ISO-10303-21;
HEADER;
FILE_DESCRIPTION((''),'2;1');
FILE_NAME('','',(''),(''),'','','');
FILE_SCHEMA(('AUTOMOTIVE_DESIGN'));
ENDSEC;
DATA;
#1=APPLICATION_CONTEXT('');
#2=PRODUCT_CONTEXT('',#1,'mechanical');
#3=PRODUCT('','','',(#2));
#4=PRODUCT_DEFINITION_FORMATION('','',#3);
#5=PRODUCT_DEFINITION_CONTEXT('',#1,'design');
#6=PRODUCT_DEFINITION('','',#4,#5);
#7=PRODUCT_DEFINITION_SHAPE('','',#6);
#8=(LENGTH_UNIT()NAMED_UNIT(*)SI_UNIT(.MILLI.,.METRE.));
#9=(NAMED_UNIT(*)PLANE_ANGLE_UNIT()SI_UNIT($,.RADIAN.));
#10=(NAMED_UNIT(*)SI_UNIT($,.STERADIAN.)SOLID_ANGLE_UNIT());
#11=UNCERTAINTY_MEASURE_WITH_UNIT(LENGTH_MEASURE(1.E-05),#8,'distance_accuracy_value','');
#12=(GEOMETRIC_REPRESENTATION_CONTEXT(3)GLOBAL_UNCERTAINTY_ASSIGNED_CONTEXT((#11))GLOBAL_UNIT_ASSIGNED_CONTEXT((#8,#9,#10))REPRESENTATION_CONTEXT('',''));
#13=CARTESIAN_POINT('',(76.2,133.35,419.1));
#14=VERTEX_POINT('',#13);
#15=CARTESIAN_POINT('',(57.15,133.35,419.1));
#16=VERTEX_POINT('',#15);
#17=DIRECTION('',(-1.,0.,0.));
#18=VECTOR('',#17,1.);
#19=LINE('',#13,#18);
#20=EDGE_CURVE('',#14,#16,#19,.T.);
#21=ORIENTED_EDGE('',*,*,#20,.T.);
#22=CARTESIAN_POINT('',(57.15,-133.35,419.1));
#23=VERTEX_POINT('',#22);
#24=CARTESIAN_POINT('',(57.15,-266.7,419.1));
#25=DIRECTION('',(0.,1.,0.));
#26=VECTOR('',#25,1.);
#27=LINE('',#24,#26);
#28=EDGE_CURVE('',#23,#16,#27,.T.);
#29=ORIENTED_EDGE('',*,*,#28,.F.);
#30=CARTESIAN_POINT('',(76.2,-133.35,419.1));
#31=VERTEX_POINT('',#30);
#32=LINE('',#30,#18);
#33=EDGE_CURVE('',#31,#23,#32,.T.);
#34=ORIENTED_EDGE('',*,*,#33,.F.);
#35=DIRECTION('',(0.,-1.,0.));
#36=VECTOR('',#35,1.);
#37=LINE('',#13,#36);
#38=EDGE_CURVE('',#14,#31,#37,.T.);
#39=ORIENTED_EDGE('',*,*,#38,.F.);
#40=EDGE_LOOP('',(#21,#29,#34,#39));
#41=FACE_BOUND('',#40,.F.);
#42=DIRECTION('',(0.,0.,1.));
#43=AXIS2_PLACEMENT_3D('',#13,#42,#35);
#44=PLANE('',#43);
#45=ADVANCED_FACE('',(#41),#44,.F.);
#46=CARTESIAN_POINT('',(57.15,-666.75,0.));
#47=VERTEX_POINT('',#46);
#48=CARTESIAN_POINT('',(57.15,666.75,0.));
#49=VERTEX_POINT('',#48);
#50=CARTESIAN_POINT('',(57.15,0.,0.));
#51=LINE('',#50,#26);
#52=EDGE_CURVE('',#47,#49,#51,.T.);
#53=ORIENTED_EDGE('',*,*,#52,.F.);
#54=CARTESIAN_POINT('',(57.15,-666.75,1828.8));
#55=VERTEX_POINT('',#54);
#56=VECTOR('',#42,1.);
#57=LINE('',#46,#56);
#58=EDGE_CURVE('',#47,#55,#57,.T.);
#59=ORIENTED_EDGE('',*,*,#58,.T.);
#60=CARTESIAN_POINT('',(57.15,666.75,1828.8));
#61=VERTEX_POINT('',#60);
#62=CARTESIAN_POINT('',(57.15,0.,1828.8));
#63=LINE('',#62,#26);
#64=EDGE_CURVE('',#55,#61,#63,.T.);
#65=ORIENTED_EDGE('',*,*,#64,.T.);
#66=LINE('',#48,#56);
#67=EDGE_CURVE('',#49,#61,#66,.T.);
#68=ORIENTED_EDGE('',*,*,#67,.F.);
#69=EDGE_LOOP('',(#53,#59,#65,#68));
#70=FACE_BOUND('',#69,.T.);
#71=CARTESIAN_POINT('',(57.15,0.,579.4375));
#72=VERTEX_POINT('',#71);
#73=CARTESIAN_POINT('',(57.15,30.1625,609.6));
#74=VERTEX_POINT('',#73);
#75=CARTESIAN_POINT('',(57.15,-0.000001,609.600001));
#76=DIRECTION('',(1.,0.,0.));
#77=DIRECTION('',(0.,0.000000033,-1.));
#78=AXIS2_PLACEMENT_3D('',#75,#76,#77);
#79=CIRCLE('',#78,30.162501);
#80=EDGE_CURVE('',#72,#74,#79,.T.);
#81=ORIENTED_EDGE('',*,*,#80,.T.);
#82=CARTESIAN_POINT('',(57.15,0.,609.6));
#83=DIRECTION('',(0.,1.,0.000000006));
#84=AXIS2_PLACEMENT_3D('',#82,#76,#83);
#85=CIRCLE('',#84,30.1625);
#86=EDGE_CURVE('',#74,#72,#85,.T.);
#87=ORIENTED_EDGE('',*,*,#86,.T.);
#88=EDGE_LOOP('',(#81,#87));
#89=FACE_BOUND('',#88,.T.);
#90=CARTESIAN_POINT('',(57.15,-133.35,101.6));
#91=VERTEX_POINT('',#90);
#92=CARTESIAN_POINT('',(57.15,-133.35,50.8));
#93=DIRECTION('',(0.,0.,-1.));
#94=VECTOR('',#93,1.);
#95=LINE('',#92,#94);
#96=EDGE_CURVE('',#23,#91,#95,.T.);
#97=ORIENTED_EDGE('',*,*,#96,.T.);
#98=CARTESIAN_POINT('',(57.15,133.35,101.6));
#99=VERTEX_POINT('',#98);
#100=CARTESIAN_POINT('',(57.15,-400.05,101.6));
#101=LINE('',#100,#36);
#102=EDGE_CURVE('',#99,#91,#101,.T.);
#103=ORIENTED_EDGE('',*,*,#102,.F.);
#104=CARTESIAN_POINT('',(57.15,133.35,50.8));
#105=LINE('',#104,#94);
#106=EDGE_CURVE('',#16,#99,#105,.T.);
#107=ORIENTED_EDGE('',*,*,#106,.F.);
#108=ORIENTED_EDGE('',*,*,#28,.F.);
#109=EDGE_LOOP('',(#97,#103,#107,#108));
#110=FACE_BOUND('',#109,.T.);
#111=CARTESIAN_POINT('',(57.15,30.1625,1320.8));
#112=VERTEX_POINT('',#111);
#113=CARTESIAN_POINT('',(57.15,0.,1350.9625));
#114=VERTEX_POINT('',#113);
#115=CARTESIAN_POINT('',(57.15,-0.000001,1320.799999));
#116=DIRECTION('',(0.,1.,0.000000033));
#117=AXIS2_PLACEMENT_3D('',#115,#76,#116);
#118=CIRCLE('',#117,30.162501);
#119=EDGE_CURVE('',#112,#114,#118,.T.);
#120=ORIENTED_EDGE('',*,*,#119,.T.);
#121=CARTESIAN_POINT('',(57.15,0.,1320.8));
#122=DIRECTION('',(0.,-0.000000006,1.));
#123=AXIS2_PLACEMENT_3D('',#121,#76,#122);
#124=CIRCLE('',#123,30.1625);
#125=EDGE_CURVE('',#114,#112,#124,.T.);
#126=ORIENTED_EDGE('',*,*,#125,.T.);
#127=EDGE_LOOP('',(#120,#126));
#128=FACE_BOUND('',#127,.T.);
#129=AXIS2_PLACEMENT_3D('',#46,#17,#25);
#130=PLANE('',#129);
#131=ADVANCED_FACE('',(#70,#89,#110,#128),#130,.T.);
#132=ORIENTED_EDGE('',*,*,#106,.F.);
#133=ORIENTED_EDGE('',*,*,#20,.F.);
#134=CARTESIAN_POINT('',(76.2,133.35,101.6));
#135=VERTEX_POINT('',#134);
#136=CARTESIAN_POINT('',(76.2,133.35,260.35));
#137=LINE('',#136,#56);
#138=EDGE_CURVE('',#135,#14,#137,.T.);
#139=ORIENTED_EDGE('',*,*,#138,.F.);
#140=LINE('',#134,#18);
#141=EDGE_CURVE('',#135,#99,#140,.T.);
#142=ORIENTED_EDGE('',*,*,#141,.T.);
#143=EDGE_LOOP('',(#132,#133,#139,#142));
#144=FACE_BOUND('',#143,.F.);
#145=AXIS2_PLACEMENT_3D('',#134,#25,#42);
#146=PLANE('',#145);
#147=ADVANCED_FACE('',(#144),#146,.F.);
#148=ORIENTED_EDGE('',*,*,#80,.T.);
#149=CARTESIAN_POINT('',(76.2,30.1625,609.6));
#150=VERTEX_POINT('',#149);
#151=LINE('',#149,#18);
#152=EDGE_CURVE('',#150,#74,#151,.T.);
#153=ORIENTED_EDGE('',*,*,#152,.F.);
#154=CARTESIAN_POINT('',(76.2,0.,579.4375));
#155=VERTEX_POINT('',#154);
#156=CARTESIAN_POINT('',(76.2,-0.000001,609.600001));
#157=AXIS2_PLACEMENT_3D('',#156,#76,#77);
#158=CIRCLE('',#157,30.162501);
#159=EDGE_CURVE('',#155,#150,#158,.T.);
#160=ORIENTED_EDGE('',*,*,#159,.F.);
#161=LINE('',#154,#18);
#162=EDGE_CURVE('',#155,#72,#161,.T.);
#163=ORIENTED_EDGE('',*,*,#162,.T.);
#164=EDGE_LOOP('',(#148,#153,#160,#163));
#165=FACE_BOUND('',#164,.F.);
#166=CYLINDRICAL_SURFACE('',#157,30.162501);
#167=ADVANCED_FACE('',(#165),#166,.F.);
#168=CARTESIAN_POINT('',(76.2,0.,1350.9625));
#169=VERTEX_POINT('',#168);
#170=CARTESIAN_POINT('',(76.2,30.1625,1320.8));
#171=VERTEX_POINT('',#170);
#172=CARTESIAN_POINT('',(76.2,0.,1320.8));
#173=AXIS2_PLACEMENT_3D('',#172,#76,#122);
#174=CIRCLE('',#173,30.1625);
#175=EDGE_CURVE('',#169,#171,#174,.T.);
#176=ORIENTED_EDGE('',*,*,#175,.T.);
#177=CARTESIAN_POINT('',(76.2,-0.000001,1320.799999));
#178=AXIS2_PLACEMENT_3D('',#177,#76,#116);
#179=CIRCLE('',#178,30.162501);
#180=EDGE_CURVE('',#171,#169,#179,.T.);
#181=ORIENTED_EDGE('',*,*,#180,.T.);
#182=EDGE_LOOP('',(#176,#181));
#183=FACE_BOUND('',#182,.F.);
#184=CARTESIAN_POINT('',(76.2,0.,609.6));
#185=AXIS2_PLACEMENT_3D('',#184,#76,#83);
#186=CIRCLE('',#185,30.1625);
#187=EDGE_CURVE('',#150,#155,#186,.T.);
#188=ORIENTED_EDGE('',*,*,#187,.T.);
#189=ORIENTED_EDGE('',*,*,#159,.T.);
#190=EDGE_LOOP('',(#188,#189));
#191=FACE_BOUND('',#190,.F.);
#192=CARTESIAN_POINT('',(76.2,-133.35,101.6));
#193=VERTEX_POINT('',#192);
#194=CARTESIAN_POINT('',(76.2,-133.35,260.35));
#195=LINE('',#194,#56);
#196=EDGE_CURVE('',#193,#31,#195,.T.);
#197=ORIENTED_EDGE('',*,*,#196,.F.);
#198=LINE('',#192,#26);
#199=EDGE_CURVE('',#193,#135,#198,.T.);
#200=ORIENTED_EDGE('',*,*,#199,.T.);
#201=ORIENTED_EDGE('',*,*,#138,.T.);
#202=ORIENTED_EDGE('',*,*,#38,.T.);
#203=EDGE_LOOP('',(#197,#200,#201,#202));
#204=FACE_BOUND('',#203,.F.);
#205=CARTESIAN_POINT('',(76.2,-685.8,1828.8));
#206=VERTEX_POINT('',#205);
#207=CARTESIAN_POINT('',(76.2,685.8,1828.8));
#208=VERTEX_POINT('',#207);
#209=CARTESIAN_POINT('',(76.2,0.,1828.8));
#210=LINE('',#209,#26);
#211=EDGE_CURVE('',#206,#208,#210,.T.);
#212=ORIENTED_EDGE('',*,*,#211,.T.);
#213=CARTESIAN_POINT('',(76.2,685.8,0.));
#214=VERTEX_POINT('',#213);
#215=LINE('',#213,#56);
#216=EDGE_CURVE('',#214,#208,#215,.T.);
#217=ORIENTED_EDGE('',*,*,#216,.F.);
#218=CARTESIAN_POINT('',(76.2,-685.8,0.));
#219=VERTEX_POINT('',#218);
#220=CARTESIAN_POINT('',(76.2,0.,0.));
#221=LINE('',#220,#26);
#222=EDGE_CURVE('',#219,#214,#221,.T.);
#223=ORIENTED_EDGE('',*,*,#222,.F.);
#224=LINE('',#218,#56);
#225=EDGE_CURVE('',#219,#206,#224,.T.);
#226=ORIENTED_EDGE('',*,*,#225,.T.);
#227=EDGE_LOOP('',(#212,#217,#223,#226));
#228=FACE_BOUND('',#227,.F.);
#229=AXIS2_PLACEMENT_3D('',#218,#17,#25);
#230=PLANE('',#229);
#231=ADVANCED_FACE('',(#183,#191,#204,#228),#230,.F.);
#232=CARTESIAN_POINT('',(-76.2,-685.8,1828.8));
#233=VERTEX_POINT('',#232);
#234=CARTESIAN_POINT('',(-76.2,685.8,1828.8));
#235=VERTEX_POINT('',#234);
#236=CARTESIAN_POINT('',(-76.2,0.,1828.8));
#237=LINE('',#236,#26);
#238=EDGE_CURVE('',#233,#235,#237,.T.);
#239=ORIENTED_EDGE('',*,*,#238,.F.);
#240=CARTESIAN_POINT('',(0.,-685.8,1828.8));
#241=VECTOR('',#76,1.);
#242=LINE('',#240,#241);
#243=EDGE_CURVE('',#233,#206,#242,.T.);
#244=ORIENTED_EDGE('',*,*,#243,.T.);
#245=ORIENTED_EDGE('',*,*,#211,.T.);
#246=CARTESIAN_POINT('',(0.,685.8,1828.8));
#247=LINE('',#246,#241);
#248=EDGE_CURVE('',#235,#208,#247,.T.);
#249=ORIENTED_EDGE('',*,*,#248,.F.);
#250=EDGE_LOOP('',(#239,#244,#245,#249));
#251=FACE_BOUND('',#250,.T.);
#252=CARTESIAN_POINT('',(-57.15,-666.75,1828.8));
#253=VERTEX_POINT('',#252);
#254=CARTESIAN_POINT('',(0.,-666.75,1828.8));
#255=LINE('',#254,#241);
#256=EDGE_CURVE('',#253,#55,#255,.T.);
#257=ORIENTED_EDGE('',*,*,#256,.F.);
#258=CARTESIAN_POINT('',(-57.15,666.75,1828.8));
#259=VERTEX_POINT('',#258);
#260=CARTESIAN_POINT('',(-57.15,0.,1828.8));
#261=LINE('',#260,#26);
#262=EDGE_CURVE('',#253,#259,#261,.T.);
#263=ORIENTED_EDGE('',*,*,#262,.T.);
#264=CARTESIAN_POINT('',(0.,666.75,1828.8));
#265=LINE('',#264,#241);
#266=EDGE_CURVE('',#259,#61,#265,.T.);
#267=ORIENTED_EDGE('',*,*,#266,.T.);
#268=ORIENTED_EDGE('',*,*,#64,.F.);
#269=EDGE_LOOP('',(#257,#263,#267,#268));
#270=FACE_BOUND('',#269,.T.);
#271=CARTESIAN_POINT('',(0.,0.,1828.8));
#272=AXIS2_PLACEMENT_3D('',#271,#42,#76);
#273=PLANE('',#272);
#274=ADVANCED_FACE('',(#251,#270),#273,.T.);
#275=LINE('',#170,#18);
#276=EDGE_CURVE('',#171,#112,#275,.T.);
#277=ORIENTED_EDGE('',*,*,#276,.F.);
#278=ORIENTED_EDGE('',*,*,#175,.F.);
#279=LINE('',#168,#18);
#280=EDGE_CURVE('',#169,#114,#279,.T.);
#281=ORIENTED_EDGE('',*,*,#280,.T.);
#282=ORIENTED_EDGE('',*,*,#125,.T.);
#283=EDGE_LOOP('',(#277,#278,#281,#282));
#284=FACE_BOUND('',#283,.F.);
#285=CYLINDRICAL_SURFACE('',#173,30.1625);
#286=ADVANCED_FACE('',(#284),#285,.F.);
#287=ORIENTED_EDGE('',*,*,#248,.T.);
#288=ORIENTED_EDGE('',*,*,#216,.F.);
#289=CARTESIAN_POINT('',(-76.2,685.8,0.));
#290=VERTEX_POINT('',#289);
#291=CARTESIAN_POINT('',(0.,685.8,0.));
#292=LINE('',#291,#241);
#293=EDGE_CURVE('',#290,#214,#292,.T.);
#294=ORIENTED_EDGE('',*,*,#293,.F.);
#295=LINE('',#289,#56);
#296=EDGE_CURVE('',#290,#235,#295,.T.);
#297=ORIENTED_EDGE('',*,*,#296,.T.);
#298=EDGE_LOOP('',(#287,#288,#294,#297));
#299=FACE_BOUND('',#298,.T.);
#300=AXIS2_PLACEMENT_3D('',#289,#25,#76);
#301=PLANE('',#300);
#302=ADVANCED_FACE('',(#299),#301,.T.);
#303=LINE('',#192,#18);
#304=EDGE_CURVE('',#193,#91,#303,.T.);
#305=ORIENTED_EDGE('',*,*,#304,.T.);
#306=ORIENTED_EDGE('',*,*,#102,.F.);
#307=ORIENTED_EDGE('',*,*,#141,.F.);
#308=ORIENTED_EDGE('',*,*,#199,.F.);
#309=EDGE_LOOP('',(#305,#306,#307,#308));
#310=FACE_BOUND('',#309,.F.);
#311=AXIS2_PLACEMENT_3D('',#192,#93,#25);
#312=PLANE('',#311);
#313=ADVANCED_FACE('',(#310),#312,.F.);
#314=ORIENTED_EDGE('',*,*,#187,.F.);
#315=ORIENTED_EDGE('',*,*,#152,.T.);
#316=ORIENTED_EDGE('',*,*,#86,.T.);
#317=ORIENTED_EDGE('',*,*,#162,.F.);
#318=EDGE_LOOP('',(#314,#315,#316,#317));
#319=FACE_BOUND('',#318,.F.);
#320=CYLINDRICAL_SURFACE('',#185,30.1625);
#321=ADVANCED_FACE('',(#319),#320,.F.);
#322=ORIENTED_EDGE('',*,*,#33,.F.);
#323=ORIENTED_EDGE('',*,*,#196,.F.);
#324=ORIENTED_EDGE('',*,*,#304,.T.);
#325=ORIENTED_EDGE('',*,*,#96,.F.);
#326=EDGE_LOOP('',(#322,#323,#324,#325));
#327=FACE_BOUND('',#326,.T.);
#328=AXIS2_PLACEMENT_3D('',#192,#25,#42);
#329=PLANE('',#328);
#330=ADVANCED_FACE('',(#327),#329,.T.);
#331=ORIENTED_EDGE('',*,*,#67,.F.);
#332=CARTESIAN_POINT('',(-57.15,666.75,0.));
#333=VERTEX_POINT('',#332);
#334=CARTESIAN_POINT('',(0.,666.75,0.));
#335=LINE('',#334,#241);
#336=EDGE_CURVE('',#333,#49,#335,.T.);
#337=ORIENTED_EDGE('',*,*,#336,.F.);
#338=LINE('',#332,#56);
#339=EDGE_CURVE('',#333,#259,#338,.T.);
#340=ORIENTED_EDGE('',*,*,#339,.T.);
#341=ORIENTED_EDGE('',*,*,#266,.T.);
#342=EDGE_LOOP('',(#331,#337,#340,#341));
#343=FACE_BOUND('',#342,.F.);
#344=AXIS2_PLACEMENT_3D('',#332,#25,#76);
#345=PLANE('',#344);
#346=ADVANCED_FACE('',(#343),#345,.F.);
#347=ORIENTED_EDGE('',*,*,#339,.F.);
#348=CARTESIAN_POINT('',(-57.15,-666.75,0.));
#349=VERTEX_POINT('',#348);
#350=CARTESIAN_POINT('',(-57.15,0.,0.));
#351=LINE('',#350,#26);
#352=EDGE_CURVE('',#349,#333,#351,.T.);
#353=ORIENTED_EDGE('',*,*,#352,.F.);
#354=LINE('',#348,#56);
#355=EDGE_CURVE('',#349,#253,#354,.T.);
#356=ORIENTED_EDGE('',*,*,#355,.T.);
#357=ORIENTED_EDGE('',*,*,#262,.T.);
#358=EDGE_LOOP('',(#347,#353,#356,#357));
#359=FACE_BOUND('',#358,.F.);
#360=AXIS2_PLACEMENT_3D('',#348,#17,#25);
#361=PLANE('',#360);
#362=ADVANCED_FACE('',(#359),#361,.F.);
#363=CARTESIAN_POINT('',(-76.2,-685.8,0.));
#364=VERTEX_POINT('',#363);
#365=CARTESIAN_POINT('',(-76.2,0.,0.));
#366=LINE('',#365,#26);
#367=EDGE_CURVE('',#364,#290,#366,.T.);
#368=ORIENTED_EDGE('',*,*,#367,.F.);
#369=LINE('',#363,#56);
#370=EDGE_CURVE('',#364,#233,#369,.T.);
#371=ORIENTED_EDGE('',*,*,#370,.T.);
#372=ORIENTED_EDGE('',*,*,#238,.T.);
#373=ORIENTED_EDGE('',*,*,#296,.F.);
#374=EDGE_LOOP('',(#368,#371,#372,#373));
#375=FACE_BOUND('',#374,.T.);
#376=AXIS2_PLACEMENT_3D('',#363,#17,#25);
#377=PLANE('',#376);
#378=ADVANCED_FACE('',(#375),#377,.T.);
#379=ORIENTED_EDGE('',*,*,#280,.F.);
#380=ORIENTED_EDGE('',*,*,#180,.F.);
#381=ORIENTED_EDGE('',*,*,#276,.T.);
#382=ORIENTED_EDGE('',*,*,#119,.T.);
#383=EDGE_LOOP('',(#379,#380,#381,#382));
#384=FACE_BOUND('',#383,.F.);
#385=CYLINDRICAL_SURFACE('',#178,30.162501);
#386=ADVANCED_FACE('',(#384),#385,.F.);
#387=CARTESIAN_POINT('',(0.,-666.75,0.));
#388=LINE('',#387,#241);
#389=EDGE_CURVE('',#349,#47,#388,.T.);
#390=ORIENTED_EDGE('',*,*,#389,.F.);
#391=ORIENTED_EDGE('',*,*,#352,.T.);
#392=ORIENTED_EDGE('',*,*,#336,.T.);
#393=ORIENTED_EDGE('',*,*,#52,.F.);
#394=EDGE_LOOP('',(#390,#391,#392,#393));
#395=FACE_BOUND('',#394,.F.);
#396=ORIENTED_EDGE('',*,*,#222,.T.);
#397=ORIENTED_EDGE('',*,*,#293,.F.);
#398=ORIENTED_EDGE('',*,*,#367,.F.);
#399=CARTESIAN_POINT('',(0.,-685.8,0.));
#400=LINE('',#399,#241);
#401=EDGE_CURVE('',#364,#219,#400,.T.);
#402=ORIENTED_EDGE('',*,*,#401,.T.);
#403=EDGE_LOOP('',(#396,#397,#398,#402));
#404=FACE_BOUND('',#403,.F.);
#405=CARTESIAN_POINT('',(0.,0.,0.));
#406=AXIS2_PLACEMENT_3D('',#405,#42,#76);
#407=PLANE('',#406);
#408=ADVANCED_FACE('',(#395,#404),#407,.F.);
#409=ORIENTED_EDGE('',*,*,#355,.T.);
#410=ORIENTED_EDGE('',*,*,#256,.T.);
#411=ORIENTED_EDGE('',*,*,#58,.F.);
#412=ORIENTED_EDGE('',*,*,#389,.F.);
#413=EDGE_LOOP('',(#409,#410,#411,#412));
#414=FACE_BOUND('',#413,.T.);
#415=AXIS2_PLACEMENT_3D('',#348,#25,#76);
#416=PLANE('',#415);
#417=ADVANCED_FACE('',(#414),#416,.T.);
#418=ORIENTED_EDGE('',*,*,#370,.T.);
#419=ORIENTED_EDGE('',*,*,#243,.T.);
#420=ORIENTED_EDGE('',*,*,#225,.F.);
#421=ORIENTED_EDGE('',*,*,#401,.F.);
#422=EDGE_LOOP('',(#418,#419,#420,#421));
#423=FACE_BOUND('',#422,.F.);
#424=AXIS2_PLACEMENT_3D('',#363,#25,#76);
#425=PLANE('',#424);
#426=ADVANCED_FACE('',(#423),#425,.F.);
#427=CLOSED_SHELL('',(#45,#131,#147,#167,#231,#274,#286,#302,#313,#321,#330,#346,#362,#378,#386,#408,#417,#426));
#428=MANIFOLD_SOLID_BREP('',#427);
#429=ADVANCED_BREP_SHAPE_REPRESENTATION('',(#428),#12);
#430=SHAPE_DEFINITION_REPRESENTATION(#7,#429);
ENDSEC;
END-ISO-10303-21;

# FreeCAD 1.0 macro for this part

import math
import FreeCAD as App
import Part
import Sketcher
Q = App.Units.Quantity

doc = App.newDocument("Part")
body = doc.addObject("PartDesign::Body", "Body")

sketch1 = body.newObject("Sketcher::SketchObject", "Sketch")
sketch1.AttachmentSupport = (doc.getObject("XY_Plane"), [""])
sketch1.MapMode = "FlatFace"
sketch1.addGeometry([
    Part.LineSegment(App.Vector(-76, 686, 0), App.Vector(-76, -686, 0)),
    Part.LineSegment(App.Vector(-76, -686, 0), App.Vector(76, -686, 0)),
    Part.LineSegment(App.Vector(76, -686, 0), App.Vector(76, 686, 0)),
    Part.LineSegment(App.Vector(76, 686, 0), App.Vector(-76, 686, 0)),
    Part.LineSegment(App.Vector(57, -667, 0), App.Vector(-57, -667, 0)),
    Part.LineSegment(App.Vector(-57, -667, 0), App.Vector(-57, 667, 0)),
    Part.LineSegment(App.Vector(-57, 667, 0), App.Vector(57, 667, 0)),
    Part.LineSegment(App.Vector(57, 667, 0), App.Vector(57, -667, 0)),
], False)
sketch1.addConstraint([
    Sketcher.Constraint("Coincident", 0, 2, 1, 1),
    Sketcher.Constraint("Coincident", 1, 2, 2, 1),
    Sketcher.Constraint("Coincident", 2, 2, 3, 1),
    Sketcher.Constraint("Coincident", 3, 2, 0, 1),
    Sketcher.Constraint("Coincident", 4, 2, 5, 1),
    Sketcher.Constraint("Coincident", 5, 2, 6, 1),
    Sketcher.Constraint("Coincident", 6, 2, 7, 1),
    Sketcher.Constraint("Coincident", 7, 2, 4, 1),
    Sketcher.Constraint("Vertical", 0),
    Sketcher.Constraint("Horizontal", 1),
    Sketcher.Constraint("Vertical", 2),
    Sketcher.Constraint("Horizontal", 3),
    Sketcher.Constraint("Horizontal", 4),
    Sketcher.Constraint("Vertical", 5),
    Sketcher.Constraint("Horizontal", 6),
    Sketcher.Constraint("Vertical", 7),
    Sketcher.Constraint("Symmetric", 0, 2, 2, 2, -1, 1),
    Sketcher.Constraint("Symmetric", 4, 2, 6, 2, -1, 1),
    Sketcher.Constraint("DistanceX", 1, 1, 1, 2, Q("6 in")),
    Sketcher.Constraint("DistanceY", 0, 2, 0, 1, Q("54 in")),
    Sketcher.Constraint("DistanceX", 4, 2, 4, 1, Q("4.5 in")),
    Sketcher.Constraint("DistanceY", 5, 1, 5, 2, Q("52.5 in")),
])
pad1 = body.newObject("PartDesign::Pad", "Pad")
pad1.Profile = sketch1
pad1.Length = Q("72 in")

sketch2 = body.newObject("Sketcher::SketchObject", "Sketch001")
sketch2.AttachmentSupport = (doc.getObject("YZ_Plane"), [""])
sketch2.MapMode = "FlatFace"
sketch2.AttachmentOffset = App.Placement(App.Vector(0, 0, 3 * 25.4), App.Rotation())
sketch2.addGeometry([
    Part.ArcOfCircle(Part.Circle(App.Vector(0, 1321, 0), App.Vector(0, 0, 1), 30), math.radians(0), math.radians(90)),
    Part.ArcOfCircle(Part.Circle(App.Vector(0, 1321, 0), App.Vector(0, 0, 1), 30), math.radians(90), math.radians(360)),
    Part.ArcOfCircle(Part.Circle(App.Vector(0, 610, 0), App.Vector(0, 0, 1), 30), math.radians(0), math.radians(270)),
    Part.ArcOfCircle(Part.Circle(App.Vector(0, 610, 0), App.Vector(0, 0, 1), 30), math.radians(-90), math.radians(0)),
    Part.LineSegment(App.Vector(-133, 419, 0), App.Vector(-133, 102, 0)),
    Part.LineSegment(App.Vector(-133, 102, 0), App.Vector(133, 102, 0)),
    Part.LineSegment(App.Vector(133, 102, 0), App.Vector(133, 419, 0)),
    Part.LineSegment(App.Vector(133, 419, 0), App.Vector(-133, 419, 0)),
], False)
sketch2.addConstraint([
    Sketcher.Constraint("Tangent", 0, 1, 1, 2),
    Sketcher.Constraint("Coincident", 1, 1, 0, 2),
    Sketcher.Constraint("Tangent", 2, 1, 3, 2),
    Sketcher.Constraint("Coincident", 3, 1, 2, 2),
    Sketcher.Constraint("Coincident", 4, 2, 5, 1),
    Sketcher.Constraint("Coincident", 5, 2, 6, 1),
    Sketcher.Constraint("Coincident", 6, 2, 7, 1),
    Sketcher.Constraint("Coincident", 7, 2, 4, 1),
    Sketcher.Constraint("Vertical", 4),
    Sketcher.Constraint("Horizontal", 5),
    Sketcher.Constraint("Vertical", 6),
    Sketcher.Constraint("Horizontal", 7),
    Sketcher.Constraint("Equal", 1, 2),
    Sketcher.Constraint("PointOnObject", 0, 3, -2),
    Sketcher.Constraint("PointOnObject", 2, 3, -2),
    Sketcher.Constraint("PointOnObject", 1, 1, -2),
    Sketcher.Constraint("PointOnObject", 3, 1, -2),
    Sketcher.Constraint("Horizontal", 1, 3, 0, 1),
    Sketcher.Constraint("Horizontal", 3, 3, 2, 1),
    Sketcher.Constraint("DistanceX", 5, 1, 5, 2, Q("10.5 in")),
    Sketcher.Constraint("DistanceY", 4, 2, 4, 1, Q("12.5 in")),
    Sketcher.Constraint("DistanceY", -1, 1, 0, 3, Q("52 in")),
    Sketcher.Constraint("DistanceY", -1, 1, 2, 3, Q("24 in")),
    Sketcher.Constraint("DistanceY", -1, 1, 4, 2, Q("4 in")),
    Sketcher.Constraint("Radius", 0, Q("1.1875 in")),
    Sketcher.Constraint("DistanceX", 4, 2, -1, 1, Q("5.25 in")),
])
pocket1 = body.newObject("PartDesign::Pocket", "Pocket")
pocket1.Profile = sketch2
pocket1.Length = Q("1 in")

doc.recompute()
